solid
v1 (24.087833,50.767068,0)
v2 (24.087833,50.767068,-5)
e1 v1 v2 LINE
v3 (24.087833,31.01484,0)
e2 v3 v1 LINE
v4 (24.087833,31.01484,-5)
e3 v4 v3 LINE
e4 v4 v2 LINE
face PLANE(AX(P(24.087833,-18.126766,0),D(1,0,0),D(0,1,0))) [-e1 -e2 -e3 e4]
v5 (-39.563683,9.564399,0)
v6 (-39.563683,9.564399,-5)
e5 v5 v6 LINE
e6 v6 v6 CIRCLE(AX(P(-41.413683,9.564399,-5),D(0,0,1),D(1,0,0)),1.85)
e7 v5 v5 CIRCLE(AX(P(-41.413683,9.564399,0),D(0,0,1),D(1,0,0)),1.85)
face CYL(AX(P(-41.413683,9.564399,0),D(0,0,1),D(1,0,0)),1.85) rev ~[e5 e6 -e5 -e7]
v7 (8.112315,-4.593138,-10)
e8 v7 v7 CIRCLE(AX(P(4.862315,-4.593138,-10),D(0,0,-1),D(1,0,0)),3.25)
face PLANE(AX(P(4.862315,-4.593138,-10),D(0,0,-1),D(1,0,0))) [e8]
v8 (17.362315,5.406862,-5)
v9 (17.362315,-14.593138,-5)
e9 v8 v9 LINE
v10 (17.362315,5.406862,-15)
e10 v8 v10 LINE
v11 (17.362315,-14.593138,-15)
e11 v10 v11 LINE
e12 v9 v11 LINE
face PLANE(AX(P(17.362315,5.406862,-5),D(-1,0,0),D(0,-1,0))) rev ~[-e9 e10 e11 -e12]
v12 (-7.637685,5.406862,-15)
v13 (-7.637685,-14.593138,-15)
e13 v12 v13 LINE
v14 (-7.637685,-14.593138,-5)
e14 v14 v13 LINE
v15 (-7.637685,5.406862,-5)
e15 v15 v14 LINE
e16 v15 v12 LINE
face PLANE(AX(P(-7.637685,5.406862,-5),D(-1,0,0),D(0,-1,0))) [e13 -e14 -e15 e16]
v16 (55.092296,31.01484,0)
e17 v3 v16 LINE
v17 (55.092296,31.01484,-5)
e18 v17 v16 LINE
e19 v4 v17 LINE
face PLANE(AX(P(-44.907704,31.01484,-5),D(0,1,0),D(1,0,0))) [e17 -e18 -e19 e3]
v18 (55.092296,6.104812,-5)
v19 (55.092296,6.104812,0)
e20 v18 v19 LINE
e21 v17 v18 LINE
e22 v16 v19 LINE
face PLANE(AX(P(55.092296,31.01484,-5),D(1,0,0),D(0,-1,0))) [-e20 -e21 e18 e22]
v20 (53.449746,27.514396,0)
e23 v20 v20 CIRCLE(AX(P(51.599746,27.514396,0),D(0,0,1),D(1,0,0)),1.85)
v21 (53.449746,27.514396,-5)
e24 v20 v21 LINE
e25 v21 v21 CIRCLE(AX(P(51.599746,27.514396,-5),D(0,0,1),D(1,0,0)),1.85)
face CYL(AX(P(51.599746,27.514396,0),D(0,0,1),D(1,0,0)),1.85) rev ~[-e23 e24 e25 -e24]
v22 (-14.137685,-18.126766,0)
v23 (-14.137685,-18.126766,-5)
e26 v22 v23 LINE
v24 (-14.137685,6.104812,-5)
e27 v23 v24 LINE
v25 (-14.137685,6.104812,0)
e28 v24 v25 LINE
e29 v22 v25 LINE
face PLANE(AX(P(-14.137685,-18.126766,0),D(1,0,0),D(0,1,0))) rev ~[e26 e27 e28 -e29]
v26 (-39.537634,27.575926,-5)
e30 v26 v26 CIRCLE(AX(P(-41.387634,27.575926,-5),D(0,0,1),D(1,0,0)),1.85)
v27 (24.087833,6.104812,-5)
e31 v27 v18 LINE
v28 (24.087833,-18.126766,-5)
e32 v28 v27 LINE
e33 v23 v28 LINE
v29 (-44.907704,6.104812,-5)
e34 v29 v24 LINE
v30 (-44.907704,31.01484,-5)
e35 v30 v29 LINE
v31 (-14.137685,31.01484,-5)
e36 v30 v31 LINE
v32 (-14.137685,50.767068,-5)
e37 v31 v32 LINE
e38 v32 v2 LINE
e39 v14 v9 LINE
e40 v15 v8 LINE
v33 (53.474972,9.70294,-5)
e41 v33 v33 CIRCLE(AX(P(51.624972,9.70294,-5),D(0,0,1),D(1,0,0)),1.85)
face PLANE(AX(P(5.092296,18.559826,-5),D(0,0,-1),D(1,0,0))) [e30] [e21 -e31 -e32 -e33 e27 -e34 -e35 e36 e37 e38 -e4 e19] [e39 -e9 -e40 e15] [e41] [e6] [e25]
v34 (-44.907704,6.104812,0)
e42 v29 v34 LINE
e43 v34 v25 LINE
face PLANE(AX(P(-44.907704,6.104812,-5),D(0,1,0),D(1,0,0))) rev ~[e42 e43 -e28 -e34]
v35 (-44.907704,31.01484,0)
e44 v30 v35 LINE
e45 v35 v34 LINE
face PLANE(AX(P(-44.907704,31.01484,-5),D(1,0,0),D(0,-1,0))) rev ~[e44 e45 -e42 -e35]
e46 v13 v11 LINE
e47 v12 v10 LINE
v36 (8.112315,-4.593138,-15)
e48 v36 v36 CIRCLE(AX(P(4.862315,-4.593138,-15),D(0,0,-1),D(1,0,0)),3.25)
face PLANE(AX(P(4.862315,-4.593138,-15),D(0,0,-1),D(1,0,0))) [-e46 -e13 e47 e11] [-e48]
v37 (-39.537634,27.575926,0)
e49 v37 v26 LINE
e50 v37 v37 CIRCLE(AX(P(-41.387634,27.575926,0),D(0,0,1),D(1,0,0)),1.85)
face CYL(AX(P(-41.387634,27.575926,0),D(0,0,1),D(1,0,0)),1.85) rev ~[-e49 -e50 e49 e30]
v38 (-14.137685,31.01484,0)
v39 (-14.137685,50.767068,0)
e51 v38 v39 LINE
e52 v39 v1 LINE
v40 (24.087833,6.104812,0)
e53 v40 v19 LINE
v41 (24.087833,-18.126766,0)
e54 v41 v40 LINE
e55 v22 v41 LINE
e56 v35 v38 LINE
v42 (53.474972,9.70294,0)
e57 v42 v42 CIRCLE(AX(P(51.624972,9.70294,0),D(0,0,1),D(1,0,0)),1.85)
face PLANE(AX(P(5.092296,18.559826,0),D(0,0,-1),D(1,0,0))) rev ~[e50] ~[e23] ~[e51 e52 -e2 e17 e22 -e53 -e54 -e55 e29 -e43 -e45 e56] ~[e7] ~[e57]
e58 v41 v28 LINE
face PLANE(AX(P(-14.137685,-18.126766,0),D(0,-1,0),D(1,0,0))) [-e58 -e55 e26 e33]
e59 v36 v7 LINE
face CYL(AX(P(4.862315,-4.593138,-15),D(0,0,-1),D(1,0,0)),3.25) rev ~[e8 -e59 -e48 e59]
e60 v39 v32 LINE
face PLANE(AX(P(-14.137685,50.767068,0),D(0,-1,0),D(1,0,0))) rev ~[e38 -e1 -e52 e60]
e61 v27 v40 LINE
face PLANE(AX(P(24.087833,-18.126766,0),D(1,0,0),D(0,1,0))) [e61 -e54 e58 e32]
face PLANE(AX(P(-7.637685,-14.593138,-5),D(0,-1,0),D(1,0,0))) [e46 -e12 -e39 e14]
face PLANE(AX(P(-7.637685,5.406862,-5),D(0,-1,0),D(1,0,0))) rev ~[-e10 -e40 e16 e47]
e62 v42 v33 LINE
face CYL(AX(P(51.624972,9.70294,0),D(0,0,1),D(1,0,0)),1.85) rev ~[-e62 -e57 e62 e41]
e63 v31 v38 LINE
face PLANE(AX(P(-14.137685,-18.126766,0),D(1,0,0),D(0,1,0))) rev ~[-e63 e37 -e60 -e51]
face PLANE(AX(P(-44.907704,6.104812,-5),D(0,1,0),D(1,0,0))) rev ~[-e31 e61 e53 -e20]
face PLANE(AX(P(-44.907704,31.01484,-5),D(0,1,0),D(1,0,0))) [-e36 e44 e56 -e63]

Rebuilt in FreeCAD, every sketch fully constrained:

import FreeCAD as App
import Part
import Sketcher
Q = App.Units.Quantity


def add_polygon(sketch, points):
    """Adds a closed chain of lines whose ends are joined by coincident constraints."""
    first, n = sketch.GeometryCount, len(points)
    for a, b in zip(points, points[1:] + points[:1]):
        sketch.addGeometry(Part.LineSegment(App.Vector(*a, 0), App.Vector(*b, 0)), False)
    for i in range(n):
        sketch.addConstraint(Sketcher.Constraint("Coincident", first + i, 2, first + (i + 1) % n, 1))

doc = App.newDocument("Part")
params = doc.addObject("Spreadsheet::Sheet", "Params")
for row, (alias, value) in enumerate([
    ("pad1_length", "5 mm"),
    ("sketch2_width", "100 mm"),
    ("pad2_length", "5 mm"),
    ("sketch3_diameter", "3.7 mm"),
    ("pocket1_length", "25.4 mm"),
    ("sketch4_width", "25 mm"),
    ("sketch4_height", "20 mm"),
    ("pad3_length", "10 mm"),
    ("sketch5_diameter", "6.5 mm"),
    ("pocket2_length", "5 mm"),
], start=1):
    params.set(f"A{row}", alias)
    params.set(f"B{row}", "=" + value)
    params.setAlias(f"B{row}", alias)

body = doc.addObject("PartDesign::Body", "Body")

# Sketch on XY plane
sketch1 = body.newObject("Sketcher::SketchObject", "Sketch")
sketch1.AttachmentSupport = (doc.getObject("XY_Plane"), [""])
sketch1.MapMode = "FlatFace"
add_polygon(sketch1, [(-14, 51), (-14, -18), (24, -18), (24, 51)])  # lines 0-3
sketch1.addConstraint([
    Sketcher.Constraint("Vertical", 0),
    Sketcher.Constraint("Horizontal", 1),
    Sketcher.Constraint("Vertical", 2),
    Sketcher.Constraint("Horizontal", 3),
    Sketcher.Constraint("DistanceX", 1, 1, 1, 2, Q("38.225519 mm")),
    Sketcher.Constraint("DistanceY", 0, 2, 0, 1, Q("68.893833 mm")),
    Sketcher.Constraint("DistanceX", 0, 2, -1, 1, Q("14.137685 mm")),
    Sketcher.Constraint("DistanceY", 0, 2, -1, 1, Q("18.126766 mm")),
])
pad1 = body.newObject("PartDesign::Pad", "Pad")
pad1.Profile = sketch1
pad1.setExpression("Length", "Params.pad1_length")
pad1.Reversed = True

# Sketch on XY plane
sketch2 = body.newObject("Sketcher::SketchObject", "Sketch001")
sketch2.AttachmentSupport = (doc.getObject("XY_Plane"), [""])
sketch2.MapMode = "FlatFace"
sketch2.AttachmentOffset = App.Placement(App.Vector(0, 0, -5), App.Rotation())
add_polygon(sketch2, [(-45, 6), (-45, 31), (55, 31), (55, 6)])  # lines 0-3
sketch2.addConstraint([
    Sketcher.Constraint("Vertical", 0),
    Sketcher.Constraint("Horizontal", 1),
    Sketcher.Constraint("Vertical", 2),
    Sketcher.Constraint("Horizontal", 3),
    Sketcher.Constraint("DistanceX", 1, 1, 1, 2, Q("100 mm")),
    Sketcher.Constraint("DistanceY", 0, 1, 0, 2, Q("24.910029 mm")),
    Sketcher.Constraint("DistanceY", -1, 1, 0, 2, Q("31.01484 mm")),
    Sketcher.Constraint("DistanceX", 0, 2, -1, 1, Q("44.907704 mm")),
])
sketch2.setExpression("Constraints[8]", "Params.sketch2_width")
pad2 = body.newObject("PartDesign::Pad", "Pad001")
pad2.Profile = sketch2
pad2.setExpression("Length", "Params.pad2_length")

# Sketch on XY plane
sketch3 = body.newObject("Sketcher::SketchObject", "Sketch002")
sketch3.AttachmentSupport = (doc.getObject("XY_Plane"), [""])
sketch3.MapMode = "FlatFace"
sketch3.addGeometry([
    Part.Circle(App.Vector(-41.4, 27.6, 0), App.Vector(0, 0, 1), 1.9),
    Part.Circle(App.Vector(51.6, 27.5, 0), App.Vector(0, 0, 1), 1.9),
    Part.Circle(App.Vector(-41.4, 9.6, 0), App.Vector(0, 0, 1), 1.9),
    Part.Circle(App.Vector(51.6, 9.7, 0), App.Vector(0, 0, 1), 1.9),
], False)
sketch3.addConstraint([
    Sketcher.Constraint("Equal", 0, 1),
    Sketcher.Constraint("Equal", 1, 2),
    Sketcher.Constraint("Equal", 2, 3),
    Sketcher.Constraint("Diameter", 0, Q("3.7 mm")),
    Sketcher.Constraint("DistanceY", -1, 1, 2, 3, Q("9.564399 mm")),
    Sketcher.Constraint("DistanceY", -1, 1, 3, 3, Q("9.70294 mm")),
    Sketcher.Constraint("DistanceX", 0, 3, 1, 3, Q("92.98738 mm")),
    Sketcher.Constraint("DistanceY", 1, 3, 0, 3, Q("0.06153 mm")),
    Sketcher.Constraint("DistanceX", 2, 3, 0, 3, Q("0.026049 mm")),
    Sketcher.Constraint("DistanceX", 0, 3, -1, 1, Q("41.387634 mm")),
    Sketcher.Constraint("DistanceY", -1, 1, 0, 3, Q("27.575926 mm")),
    Sketcher.Constraint("DistanceX", -1, 1, 3, 3, Q("51.624972 mm")),
])
sketch3.setExpression("Constraints[3]", "Params.sketch3_diameter")
pocket1 = body.newObject("PartDesign::Pocket", "Pocket")
pocket1.Profile = sketch3
pocket1.setExpression("Length", "Params.pocket1_length")

# Sketch on XY plane
sketch4 = body.newObject("Sketcher::SketchObject", "Sketch003")
sketch4.AttachmentSupport = (doc.getObject("XY_Plane"), [""])
sketch4.MapMode = "FlatFace"
sketch4.AttachmentOffset = App.Placement(App.Vector(0, 0, -5), App.Rotation())
add_polygon(sketch4, [(-8, -15), (-8, 5), (17, 5), (17, -15)])  # lines 0-3
sketch4.addConstraint([
    Sketcher.Constraint("Vertical", 0),
    Sketcher.Constraint("Horizontal", 1),
    Sketcher.Constraint("Vertical", 2),
    Sketcher.Constraint("Horizontal", 3),
    Sketcher.Constraint("DistanceX", 1, 1, 1, 2, Q("25 mm")),
    Sketcher.Constraint("DistanceY", 0, 1, 0, 2, Q("20 mm")),
    Sketcher.Constraint("DistanceX", 0, 2, -1, 1, Q("7.637685 mm")),
    Sketcher.Constraint("DistanceY", -1, 1, 0, 2, Q("5.406862 mm")),
])
sketch4.setExpression("Constraints[8]", "Params.sketch4_width")
sketch4.setExpression("Constraints[9]", "Params.sketch4_height")
pad3 = body.newObject("PartDesign::Pad", "Pad002")
pad3.Profile = sketch4
pad3.setExpression("Length", "Params.pad3_length")
pad3.Reversed = True

# Sketch on XY plane
sketch5 = body.newObject("Sketcher::SketchObject", "Sketch004")
sketch5.AttachmentSupport = (doc.getObject("XY_Plane"), [""])
sketch5.MapMode = "FlatFace"
sketch5.AttachmentOffset = App.Placement(App.Vector(0, 0, -15), App.Rotation())
sketch5.addGeometry(Part.Circle(App.Vector(4.9, -4.6, 0), App.Vector(0, 0, 1), 3.2), False)
sketch5.addConstraint([
    Sketcher.Constraint("Diameter", 0, Q("6.5 mm")),
    Sketcher.Constraint("DistanceX", -1, 1, 0, 3, Q("4.862315 mm")),
    Sketcher.Constraint("DistanceY", 0, 3, -1, 1, Q("4.593138 mm")),
])
sketch5.setExpression("Constraints[0]", "Params.sketch5_diameter")
pocket2 = body.newObject("PartDesign::Pocket", "Pocket001")
pocket2.Profile = sketch5
pocket2.setExpression("Length", "Params.pocket2_length")
pocket2.Reversed = True

doc.recompute()
